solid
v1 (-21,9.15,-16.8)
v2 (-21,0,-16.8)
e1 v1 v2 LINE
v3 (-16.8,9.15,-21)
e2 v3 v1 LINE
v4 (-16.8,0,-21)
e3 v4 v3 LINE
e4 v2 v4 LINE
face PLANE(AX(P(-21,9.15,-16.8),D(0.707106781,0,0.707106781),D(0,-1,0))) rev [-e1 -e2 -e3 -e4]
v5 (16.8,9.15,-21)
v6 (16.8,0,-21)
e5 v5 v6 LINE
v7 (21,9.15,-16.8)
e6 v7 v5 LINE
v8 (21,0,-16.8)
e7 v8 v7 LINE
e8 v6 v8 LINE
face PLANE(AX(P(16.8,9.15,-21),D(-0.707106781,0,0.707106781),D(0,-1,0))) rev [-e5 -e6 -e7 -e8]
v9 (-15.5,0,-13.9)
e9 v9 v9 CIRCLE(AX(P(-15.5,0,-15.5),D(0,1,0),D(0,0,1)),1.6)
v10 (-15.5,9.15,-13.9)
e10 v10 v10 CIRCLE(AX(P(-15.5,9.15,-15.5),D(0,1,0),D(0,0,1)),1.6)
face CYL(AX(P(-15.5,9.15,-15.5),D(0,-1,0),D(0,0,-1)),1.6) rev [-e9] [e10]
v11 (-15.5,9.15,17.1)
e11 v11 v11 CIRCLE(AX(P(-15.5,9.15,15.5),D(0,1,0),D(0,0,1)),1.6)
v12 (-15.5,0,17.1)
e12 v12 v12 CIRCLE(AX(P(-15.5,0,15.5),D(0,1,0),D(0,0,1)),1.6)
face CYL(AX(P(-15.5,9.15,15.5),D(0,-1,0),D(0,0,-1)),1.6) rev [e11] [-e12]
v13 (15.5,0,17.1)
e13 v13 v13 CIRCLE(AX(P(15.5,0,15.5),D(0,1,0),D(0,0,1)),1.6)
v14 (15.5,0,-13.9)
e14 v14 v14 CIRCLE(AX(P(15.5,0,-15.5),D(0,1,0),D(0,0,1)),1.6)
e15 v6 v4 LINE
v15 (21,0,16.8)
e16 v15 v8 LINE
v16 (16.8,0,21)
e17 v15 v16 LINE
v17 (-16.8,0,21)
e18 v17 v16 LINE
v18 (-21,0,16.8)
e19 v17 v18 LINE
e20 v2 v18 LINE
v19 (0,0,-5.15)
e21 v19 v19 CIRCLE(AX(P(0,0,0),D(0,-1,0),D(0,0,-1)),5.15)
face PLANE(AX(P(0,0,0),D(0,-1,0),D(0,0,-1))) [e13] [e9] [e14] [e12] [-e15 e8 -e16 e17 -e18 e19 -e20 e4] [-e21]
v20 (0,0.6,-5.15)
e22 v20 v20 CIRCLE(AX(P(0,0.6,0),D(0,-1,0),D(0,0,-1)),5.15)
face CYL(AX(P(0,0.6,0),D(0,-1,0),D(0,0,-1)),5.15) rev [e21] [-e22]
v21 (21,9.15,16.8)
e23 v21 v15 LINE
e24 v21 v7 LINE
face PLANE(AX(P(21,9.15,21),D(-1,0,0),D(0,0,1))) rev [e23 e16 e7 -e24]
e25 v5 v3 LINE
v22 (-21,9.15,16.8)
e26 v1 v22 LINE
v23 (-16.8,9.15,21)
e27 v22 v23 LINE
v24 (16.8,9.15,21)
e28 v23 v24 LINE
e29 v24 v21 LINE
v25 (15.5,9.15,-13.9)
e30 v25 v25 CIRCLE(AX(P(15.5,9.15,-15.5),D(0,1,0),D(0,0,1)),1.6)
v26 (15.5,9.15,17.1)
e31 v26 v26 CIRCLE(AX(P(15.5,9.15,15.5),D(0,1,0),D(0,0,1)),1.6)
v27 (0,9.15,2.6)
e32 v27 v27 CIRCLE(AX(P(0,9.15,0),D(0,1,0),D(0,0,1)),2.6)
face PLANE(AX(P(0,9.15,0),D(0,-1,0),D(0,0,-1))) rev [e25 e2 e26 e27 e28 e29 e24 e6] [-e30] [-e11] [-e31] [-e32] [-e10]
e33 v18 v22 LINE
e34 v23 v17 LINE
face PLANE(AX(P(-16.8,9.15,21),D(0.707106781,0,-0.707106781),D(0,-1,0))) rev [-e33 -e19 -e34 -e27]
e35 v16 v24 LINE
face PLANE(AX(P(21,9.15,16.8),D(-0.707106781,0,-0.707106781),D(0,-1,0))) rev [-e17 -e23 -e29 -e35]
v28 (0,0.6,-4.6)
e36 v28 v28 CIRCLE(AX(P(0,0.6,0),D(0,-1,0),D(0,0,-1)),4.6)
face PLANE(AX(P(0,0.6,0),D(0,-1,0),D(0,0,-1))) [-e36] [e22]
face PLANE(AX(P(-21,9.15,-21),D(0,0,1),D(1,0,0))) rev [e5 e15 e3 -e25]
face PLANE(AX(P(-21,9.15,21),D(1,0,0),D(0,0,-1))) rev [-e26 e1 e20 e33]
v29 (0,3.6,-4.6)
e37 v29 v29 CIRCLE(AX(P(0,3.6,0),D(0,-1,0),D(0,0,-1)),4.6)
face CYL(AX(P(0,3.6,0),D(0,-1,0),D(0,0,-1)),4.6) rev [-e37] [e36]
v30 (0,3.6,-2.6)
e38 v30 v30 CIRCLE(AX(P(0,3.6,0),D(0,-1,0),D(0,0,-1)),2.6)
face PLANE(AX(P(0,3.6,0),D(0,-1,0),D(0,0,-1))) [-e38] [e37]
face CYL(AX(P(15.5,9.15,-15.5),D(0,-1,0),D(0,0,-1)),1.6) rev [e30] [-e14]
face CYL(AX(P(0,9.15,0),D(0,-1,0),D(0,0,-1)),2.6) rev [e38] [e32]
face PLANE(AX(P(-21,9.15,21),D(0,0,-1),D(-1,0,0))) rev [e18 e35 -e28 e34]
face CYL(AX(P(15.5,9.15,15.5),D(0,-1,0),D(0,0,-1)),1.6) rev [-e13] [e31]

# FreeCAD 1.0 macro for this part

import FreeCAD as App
import Part
import Sketcher
from FreeCAD import Vector


def edges_at(feature, points):
    """Names of the edges that pass closest to the given points."""
    edges = feature.Shape.Edges
    near = lambda p: min(range(len(edges)), key=lambda i: edges[i].distToShape(Part.Vertex(*p))[0])
    return sorted({f"Edge{near(p) + 1}" for p in points})


def add_polygon(sketch, points):
    """Adds a closed chain of lines whose ends are joined by coincident constraints."""
    first, n = sketch.GeometryCount, len(points)
    for a, b in zip(points, points[1:] + points[:1]):
        sketch.addGeometry(Part.LineSegment(App.Vector(*a, 0), App.Vector(*b, 0)), False)
    for i in range(n):
        sketch.addConstraint(Sketcher.Constraint("Coincident", first + i, 2, first + (i + 1) % n, 1))

doc = App.newDocument("Part")
body = doc.addObject("PartDesign::Body", "Body")

sketch1 = body.newObject("Sketcher::SketchObject", "Sketch")
sketch1.AttachmentSupport = (doc.getObject("XZ_Plane"), [""])
sketch1.MapMode = "FlatFace"
add_polygon(sketch1, [(-21, -21), (-21, 21), (21, 21), (21, -21)])
sketch1.addGeometry(Part.Circle(Vector(-15.5, 15.5, 0), Vector(0, 0, 1), 1.6), False)
sketch1.addGeometry(Part.Circle(Vector(15.5, 15.5, 0), Vector(0, 0, 1), 1.6), False)
sketch1.addGeometry(Part.Circle(Vector(-15.5, -15.5, 0), Vector(0, 0, 1), 1.6), False)
sketch1.addGeometry(Part.Circle(Vector(0, 0, 0), Vector(0, 0, 1), 2.6), False)
sketch1.addGeometry(Part.Circle(Vector(15.5, -15.5, 0), Vector(0, 0, 1), 1.6), False)
sketch1.addConstraint(Sketcher.Constraint("Vertical", 0))
sketch1.addConstraint(Sketcher.Constraint("Horizontal", 1))
sketch1.addConstraint(Sketcher.Constraint("Vertical", 2))
sketch1.addConstraint(Sketcher.Constraint("Horizontal", 3))
sketch1.addConstraint(Sketcher.Constraint("Coincident", 7, 3, -1, 1))
sketch1.addConstraint(Sketcher.Constraint("Equal", 4, 5))
sketch1.addConstraint(Sketcher.Constraint("Equal", 5, 6))
sketch1.addConstraint(Sketcher.Constraint("Equal", 6, 8))
sketch1.addConstraint(Sketcher.Constraint("Symmetric", 5, 3, 6, 3, -1, 1))
sketch1.addConstraint(Sketcher.Constraint("Symmetric", 4, 3, 8, 3, -1, 1))
sketch1.addConstraint(Sketcher.Constraint("Symmetric", 0, 2, 2, 2, -1, 1))
sketch1.addConstraint(Sketcher.Constraint("Symmetric", 4, 3, 5, 3, -2))
sketch1.addConstraint(Sketcher.Constraint("Equal", 3, 0))
sketch1.addConstraint(Sketcher.Constraint("Diameter", 4, 3.2))
sketch1.addConstraint(Sketcher.Constraint("Diameter", 7, 5.2))
sketch1.addConstraint(Sketcher.Constraint("DistanceX", 1, 1, 1, 2, 42.0))
sketch1.addConstraint(Sketcher.Constraint("DistanceX", 4, 3, 5, 3, 31.0))
sketch1.addConstraint(Sketcher.Constraint("DistanceY", 6, 3, 4, 3, 31.0))
pad1 = body.newObject("PartDesign::Pad", "Pad")
pad1.Profile = sketch1
pad1.Length = 9.15
pad1.Reversed = True

sketch2 = body.newObject("Sketcher::SketchObject", "Sketch001")
sketch2.AttachmentSupport = (doc.getObject("XZ_Plane"), [""])
sketch2.MapMode = "FlatFace"
sketch2.addGeometry(Part.Circle(Vector(0, 0, 0), Vector(0, 0, 1), 5), False)
sketch2.addConstraint(Sketcher.Constraint("Coincident", 0, 3, -1, 1))
sketch2.addConstraint(Sketcher.Constraint("Diameter", 0, 10.3))
pocket1 = body.newObject("PartDesign::Pocket", "Pocket")
pocket1.Profile = sketch2
pocket1.Length = 0.6
doc.recompute()

chamfer = body.newObject("PartDesign::Chamfer", "Chamfer")
chamfer.Base = (pocket1, edges_at(pocket1, [
    (21, 4.575, 21),
    (-21, 4.575, 21),
    (-21, 4.575, -21),
    (21, 4.575, -21),
]))
chamfer.Size = 4.2

sketch3 = body.newObject("Sketcher::SketchObject", "Sketch002")
sketch3.AttachmentSupport = (doc.getObject("XZ_Plane"), [""])
sketch3.MapMode = "FlatFace"
sketch3.AttachmentOffset = App.Placement(Vector(0, 0, -0.6), App.Rotation())
sketch3.addGeometry(Part.Circle(Vector(0, 0, 0), Vector(0, 0, 1), 4.6), False)
sketch3.addConstraint(Sketcher.Constraint("Coincident", 0, 3, -1, 1))
sketch3.addConstraint(Sketcher.Constraint("Diameter", 0, 9.2))
pocket2 = body.newObject("PartDesign::Pocket", "Pocket001")
pocket2.Profile = sketch3
pocket2.Length = 3

doc.recompute()
